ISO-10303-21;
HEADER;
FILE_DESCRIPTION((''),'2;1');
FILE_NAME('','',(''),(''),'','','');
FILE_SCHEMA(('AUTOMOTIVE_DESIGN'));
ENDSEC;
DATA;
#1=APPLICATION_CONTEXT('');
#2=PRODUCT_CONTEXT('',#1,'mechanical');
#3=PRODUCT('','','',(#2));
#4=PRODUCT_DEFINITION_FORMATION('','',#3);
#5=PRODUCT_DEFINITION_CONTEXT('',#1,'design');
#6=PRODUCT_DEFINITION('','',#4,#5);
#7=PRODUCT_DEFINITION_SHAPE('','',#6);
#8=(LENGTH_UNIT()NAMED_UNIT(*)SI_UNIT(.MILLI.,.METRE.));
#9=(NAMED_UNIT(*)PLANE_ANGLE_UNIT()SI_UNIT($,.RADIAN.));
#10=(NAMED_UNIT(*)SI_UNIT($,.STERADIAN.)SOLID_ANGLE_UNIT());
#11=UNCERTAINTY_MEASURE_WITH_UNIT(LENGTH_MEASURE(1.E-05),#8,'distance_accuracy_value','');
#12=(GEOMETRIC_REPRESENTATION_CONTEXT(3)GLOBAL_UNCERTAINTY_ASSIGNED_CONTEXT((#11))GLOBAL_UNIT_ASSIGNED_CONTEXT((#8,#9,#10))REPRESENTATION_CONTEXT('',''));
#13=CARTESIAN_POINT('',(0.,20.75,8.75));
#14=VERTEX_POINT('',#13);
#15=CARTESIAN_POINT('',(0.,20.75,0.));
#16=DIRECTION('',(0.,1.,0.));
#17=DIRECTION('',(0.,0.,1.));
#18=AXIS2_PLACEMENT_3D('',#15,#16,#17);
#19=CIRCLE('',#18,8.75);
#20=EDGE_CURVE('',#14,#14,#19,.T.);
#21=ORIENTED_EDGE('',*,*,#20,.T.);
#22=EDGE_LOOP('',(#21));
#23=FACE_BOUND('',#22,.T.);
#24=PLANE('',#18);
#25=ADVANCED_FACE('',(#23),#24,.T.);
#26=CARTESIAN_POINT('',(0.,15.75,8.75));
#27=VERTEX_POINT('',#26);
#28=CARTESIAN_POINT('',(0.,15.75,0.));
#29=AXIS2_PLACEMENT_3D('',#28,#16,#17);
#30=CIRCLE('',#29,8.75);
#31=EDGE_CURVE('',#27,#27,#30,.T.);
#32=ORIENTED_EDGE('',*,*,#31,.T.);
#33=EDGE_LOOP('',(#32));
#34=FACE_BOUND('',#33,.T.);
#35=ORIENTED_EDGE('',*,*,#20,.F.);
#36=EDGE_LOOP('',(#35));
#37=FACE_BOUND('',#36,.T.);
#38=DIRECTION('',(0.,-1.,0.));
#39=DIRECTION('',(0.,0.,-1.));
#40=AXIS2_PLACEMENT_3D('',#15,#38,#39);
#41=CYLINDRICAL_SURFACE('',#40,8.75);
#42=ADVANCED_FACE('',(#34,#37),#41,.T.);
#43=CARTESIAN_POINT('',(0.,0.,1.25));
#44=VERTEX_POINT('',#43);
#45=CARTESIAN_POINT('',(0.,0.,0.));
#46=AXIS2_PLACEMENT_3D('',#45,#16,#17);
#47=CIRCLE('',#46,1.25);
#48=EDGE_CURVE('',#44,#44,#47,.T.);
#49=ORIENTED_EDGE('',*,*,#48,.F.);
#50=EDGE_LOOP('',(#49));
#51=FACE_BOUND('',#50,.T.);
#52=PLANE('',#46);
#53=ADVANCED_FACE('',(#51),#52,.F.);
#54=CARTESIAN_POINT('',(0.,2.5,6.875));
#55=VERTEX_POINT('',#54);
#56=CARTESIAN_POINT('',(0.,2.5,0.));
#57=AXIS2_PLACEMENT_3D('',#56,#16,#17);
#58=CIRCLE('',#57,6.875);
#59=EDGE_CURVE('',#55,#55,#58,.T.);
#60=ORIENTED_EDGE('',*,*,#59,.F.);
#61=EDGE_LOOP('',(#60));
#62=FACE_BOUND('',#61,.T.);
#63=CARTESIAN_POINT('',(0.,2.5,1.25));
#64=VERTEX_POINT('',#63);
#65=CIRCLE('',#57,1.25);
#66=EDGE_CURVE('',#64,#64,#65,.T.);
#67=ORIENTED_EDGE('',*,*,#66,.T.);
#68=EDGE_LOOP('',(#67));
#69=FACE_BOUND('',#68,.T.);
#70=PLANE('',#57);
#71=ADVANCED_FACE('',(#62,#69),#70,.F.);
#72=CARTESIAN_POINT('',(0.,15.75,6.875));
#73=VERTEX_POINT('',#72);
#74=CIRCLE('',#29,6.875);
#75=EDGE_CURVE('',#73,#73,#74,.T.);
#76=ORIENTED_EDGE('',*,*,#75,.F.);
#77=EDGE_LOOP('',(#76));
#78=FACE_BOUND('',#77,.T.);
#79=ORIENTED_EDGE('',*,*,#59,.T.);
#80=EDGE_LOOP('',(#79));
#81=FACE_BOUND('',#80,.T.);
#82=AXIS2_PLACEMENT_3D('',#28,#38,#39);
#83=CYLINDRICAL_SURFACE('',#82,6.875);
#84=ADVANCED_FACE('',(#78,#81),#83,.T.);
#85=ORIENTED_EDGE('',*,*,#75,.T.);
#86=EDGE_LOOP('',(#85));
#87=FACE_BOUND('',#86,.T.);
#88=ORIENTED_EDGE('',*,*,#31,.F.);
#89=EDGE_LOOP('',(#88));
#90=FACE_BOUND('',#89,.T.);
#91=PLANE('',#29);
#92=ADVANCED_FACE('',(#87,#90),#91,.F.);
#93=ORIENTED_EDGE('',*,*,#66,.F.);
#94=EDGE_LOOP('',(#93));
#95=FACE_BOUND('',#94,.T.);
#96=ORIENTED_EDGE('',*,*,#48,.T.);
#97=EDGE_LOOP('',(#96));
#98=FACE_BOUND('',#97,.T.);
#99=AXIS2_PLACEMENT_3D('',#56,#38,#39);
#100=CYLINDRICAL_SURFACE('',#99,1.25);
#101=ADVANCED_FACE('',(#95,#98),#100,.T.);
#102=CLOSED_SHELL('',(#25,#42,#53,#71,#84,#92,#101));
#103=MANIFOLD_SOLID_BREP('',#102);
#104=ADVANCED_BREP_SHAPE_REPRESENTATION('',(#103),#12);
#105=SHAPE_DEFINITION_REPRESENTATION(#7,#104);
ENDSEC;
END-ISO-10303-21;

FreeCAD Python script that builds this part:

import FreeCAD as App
import Part
import Sketcher
from FreeCAD import Vector
Q = App.Units.Quantity

doc = App.newDocument("Part")
body = doc.addObject("PartDesign::Body", "Body")

# Sketch on XZ plane
sketch1 = doc.addObject("Sketcher::SketchObject", "Sketch")
body.addObject(sketch1)
sketch1.AttachmentSupport = (doc.XZ_Plane, [""])
sketch1.MapMode = "FlatFace"
sketch1.addGeometry(Part.Circle(Vector(0, 0, 0), Vector(0, 0, 1), 1.25), False)
sketch1.addConstraint([
    Sketcher.Constraint("Coincident", 0, 3, -1, 1),
    Sketcher.Constraint("Diameter", 0, Q("2.5 mm")),
])
pad1 = doc.addObject("PartDesign::Pad", "Pad")
body.addObject(pad1)
pad1.Profile = sketch1
pad1.Length = 2.5
pad1.Reversed = True

# Sketch on XZ plane
sketch2 = doc.addObject("Sketcher::SketchObject", "Sketch001")
body.addObject(sketch2)
sketch2.AttachmentSupport = (doc.XZ_Plane, [""])
sketch2.MapMode = "FlatFace"
sketch2.AttachmentOffset = App.Placement(Vector(0, 0, -2.5), App.Rotation())
sketch2.addGeometry(Part.Circle(Vector(0, 0, 0), Vector(0, 0, 1), 6.875), False)
sketch2.addConstraint([
    Sketcher.Constraint("Coincident", 0, 3, -1, 1),
    Sketcher.Constraint("Diameter", 0, Q("13.75 mm")),
])
pad2 = doc.addObject("PartDesign::Pad", "Pad001")
body.addObject(pad2)
pad2.Profile = sketch2
pad2.Length = 13.25
pad2.Reversed = True

# Sketch on XZ plane
sketch3 = doc.addObject("Sketcher::SketchObject", "Sketch002")
body.addObject(sketch3)
sketch3.AttachmentSupport = (doc.XZ_Plane, [""])
sketch3.MapMode = "FlatFace"
sketch3.AttachmentOffset = App.Placement(Vector(0, 0, -15.75), App.Rotation())
sketch3.addGeometry(Part.Circle(Vector(0, 0, 0), Vector(0, 0, 1), 8.75), False)
sketch3.addConstraint([
    Sketcher.Constraint("Coincident", 0, 3, -1, 1),
    Sketcher.Constraint("Diameter", 0, Q("17.5 mm")),
])
pad3 = doc.addObject("PartDesign::Pad", "Pad002")
body.addObject(pad3)
pad3.Profile = sketch3
pad3.Length = 5
pad3.Reversed = True

doc.recompute()
